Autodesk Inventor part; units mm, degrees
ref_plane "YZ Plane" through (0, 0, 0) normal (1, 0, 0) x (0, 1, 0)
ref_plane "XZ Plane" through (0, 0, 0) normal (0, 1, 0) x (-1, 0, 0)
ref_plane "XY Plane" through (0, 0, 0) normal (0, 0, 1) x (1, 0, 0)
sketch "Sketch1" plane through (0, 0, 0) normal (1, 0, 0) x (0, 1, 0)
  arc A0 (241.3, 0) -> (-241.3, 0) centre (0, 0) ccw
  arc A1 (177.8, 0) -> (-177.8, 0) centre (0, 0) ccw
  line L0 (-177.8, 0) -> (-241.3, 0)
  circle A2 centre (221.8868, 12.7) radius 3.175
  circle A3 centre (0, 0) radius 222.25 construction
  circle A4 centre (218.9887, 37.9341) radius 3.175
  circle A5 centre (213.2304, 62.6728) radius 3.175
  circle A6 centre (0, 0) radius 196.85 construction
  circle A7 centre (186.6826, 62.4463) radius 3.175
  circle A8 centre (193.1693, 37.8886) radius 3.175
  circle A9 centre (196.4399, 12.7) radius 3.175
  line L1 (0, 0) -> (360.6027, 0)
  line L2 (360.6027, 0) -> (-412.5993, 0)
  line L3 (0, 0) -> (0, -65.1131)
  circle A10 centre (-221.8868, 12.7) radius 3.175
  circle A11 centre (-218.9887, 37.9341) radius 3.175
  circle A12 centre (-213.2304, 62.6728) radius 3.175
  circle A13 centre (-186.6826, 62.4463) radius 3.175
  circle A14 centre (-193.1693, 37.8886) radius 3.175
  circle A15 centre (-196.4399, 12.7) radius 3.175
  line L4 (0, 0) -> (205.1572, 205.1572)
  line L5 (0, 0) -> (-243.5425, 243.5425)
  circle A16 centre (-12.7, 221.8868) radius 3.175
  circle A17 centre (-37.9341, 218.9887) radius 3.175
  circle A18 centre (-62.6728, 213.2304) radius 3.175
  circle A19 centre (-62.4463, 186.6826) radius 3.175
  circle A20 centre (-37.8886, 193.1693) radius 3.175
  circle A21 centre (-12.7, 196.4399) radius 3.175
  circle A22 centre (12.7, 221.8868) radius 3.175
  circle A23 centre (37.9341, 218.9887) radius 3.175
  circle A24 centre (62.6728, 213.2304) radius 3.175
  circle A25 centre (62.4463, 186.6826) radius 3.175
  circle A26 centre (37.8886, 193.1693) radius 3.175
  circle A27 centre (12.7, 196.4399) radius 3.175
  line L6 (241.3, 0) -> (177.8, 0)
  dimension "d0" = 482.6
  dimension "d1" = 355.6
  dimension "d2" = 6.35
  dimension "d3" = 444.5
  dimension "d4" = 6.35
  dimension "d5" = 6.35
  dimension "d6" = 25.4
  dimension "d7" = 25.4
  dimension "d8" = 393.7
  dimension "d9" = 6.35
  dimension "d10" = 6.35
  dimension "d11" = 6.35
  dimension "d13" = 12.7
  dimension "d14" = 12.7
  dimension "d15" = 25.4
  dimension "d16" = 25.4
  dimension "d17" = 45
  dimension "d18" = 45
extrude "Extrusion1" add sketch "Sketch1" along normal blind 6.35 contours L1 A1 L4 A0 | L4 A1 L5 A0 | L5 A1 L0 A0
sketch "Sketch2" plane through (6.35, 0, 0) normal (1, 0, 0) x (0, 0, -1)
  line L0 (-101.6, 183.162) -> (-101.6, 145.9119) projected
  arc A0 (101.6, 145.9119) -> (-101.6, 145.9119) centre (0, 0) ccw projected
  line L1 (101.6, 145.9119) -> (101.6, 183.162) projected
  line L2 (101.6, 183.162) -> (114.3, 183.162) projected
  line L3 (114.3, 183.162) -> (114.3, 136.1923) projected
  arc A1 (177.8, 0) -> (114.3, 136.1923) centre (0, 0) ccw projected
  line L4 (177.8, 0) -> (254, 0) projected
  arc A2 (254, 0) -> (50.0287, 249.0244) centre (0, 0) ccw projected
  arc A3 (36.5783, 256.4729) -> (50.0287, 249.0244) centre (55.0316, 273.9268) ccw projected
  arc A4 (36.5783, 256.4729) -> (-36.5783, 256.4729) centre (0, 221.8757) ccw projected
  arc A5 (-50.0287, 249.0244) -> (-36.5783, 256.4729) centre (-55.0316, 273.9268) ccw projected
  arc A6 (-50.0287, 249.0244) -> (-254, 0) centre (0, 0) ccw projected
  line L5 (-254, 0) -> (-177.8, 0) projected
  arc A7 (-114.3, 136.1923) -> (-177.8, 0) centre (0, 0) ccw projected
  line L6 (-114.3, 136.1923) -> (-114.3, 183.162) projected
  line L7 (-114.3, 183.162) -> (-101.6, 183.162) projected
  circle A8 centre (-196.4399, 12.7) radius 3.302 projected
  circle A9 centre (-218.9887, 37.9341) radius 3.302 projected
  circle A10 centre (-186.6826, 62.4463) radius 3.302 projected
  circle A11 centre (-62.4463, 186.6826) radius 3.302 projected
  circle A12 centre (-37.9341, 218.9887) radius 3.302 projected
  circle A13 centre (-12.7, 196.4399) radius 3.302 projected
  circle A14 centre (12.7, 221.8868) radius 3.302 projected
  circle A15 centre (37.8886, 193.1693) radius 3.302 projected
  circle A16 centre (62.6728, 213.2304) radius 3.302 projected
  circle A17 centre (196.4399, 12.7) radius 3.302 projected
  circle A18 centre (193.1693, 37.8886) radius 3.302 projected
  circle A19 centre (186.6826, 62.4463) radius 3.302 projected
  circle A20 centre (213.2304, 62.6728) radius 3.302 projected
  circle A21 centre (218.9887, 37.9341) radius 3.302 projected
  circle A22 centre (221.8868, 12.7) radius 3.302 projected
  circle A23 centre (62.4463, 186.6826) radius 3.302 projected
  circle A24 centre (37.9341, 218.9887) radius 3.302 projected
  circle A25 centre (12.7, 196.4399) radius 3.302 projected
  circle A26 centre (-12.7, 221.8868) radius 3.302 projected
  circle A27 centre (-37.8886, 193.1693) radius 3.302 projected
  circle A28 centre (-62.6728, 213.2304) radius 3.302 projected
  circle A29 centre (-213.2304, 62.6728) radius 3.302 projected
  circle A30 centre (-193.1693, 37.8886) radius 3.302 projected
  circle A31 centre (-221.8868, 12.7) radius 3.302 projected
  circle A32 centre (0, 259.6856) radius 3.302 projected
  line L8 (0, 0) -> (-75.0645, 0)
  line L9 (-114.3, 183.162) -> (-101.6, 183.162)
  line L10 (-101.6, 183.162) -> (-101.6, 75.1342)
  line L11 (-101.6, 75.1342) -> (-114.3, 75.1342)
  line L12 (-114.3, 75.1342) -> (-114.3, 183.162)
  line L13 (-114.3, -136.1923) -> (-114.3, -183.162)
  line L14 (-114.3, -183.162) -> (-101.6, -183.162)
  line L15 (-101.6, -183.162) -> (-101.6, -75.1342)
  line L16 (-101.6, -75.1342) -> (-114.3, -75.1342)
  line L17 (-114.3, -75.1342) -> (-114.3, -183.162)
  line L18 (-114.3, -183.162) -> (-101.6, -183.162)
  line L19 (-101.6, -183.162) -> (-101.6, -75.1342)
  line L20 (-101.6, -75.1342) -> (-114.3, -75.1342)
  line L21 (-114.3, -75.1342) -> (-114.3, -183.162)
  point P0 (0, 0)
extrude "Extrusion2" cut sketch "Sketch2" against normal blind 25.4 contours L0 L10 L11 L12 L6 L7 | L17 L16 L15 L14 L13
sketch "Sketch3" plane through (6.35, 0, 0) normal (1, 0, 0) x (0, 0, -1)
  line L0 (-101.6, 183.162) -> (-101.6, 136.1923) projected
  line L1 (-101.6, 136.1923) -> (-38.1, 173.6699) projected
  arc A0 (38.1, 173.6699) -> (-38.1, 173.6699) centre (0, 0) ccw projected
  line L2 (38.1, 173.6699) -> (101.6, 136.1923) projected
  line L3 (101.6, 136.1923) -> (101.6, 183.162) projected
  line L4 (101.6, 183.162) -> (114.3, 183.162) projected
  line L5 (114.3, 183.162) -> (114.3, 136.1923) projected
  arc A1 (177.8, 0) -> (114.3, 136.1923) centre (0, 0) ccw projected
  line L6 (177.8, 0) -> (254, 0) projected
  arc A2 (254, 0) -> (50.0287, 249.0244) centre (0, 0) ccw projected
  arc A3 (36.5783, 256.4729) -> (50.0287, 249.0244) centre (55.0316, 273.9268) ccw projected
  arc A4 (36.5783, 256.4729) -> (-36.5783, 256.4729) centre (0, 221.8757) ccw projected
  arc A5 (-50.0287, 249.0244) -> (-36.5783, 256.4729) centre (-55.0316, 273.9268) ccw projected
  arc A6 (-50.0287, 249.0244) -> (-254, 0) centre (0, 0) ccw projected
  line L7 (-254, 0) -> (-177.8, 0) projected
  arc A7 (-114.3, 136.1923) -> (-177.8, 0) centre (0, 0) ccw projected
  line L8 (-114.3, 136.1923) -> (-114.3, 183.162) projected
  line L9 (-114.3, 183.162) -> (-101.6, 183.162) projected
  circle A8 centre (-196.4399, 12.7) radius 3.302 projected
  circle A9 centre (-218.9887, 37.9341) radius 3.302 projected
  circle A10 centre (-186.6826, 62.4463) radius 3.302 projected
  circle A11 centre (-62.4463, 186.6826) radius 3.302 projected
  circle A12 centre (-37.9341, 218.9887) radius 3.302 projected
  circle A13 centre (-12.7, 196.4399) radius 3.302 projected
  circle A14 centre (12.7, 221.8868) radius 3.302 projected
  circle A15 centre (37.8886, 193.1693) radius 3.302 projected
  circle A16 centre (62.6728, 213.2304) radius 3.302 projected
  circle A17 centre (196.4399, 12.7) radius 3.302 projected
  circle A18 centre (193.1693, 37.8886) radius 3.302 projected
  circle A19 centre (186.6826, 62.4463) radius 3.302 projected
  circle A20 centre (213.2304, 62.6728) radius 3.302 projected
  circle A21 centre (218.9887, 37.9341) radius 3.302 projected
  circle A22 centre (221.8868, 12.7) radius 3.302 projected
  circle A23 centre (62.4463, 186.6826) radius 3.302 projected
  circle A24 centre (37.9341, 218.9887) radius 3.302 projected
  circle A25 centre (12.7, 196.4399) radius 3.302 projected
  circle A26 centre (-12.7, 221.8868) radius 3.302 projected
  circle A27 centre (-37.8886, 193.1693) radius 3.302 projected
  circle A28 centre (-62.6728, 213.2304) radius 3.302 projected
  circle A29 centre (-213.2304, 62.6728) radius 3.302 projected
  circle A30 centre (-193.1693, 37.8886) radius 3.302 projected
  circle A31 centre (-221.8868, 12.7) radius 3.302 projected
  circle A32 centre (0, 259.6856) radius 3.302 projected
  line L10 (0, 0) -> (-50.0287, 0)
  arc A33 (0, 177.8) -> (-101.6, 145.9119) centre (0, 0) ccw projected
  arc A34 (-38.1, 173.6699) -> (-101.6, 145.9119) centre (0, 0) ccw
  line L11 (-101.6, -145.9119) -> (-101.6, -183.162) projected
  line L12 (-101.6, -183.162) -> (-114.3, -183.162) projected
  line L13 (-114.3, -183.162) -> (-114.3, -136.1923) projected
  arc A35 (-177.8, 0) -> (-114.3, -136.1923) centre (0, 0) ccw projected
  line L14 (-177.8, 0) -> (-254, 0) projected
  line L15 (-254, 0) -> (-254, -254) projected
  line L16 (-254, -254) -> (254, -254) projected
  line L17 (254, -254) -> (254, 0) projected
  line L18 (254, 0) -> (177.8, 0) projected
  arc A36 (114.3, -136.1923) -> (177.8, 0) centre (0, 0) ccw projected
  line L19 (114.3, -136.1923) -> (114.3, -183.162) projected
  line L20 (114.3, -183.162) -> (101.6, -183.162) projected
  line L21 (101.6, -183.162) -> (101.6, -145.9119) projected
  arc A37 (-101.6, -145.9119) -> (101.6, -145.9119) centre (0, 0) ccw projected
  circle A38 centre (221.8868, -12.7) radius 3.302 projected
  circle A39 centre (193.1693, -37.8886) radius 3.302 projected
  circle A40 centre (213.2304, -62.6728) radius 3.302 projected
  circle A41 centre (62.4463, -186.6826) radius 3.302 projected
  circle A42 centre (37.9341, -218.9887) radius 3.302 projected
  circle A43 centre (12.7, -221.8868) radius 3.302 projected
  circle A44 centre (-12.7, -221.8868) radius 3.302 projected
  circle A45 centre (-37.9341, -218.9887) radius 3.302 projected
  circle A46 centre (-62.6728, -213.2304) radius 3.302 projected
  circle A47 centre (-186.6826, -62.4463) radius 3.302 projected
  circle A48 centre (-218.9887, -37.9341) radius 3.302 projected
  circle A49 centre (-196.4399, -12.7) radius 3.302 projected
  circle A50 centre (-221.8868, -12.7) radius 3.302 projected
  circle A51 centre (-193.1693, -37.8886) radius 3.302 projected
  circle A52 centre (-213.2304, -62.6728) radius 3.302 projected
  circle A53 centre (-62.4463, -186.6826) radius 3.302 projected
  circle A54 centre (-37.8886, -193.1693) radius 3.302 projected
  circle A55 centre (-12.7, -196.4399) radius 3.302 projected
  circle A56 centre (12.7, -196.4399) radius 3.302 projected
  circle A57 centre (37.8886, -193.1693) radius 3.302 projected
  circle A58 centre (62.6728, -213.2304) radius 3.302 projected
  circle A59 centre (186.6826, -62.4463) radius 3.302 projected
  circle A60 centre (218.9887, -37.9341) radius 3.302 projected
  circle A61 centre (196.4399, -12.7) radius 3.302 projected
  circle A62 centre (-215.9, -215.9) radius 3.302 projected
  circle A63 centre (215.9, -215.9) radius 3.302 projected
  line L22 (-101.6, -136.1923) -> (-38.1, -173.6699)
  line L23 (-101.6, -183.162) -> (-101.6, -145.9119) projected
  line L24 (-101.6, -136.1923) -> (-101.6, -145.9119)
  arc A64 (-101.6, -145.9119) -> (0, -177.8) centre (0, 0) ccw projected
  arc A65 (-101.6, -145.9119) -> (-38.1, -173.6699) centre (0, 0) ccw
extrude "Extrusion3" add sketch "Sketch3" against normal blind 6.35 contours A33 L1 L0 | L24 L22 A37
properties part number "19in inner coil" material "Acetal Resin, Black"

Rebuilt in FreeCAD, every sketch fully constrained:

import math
import FreeCAD as App
import Part
import Sketcher
Q = App.Units.Quantity


def add_polygon(sketch, points):
    """Adds a closed chain of lines whose ends are joined by coincident constraints."""
    first, n = sketch.GeometryCount, len(points)
    for a, b in zip(points, points[1:] + points[:1]):
        sketch.addGeometry(Part.LineSegment(App.Vector(*a, 0), App.Vector(*b, 0)), False)
    for i in range(n):
        sketch.addConstraint(Sketcher.Constraint("Coincident", first + i, 2, first + (i + 1) % n, 1))

doc = App.newDocument("Part")
body = doc.addObject("PartDesign::Body", "Body")

# Sketch on YZ plane
sketch1 = body.newObject("Sketcher::SketchObject", "Sketch")
sketch1.AttachmentSupport = (doc.getObject("YZ_Plane"), [""])
sketch1.MapMode = "FlatFace"
sketch1.addGeometry([
    Part.LineSegment(App.Vector(177.8, 0, 0), App.Vector(241.3, 0, 0)),  # 0
    Part.ArcOfCircle(Part.Circle(App.Vector(0, 0, 0), App.Vector(0, 0, 1), 241.3), math.radians(0), math.radians(180)),  # 1
    Part.LineSegment(App.Vector(-241.3, 0, 0), App.Vector(-177.8, 0, 0)),  # 2
    Part.ArcOfCircle(Part.Circle(App.Vector(0, 0, 0), App.Vector(0, 0, 1), 177.8), math.radians(0), math.radians(180)),  # 3
    Part.Circle(App.Vector(196.4399, 12.7, 0), App.Vector(0, 0, 1), 3.175),  # 4
    Part.Circle(App.Vector(221.8868, 12.7, 0), App.Vector(0, 0, 1), 3.175),  # 5
    Part.Circle(App.Vector(193.1693, 37.8886, 0), App.Vector(0, 0, 1), 3.175),  # 6
    Part.Circle(App.Vector(218.9887, 37.9341, 0), App.Vector(0, 0, 1), 3.175),  # 7
    Part.Circle(App.Vector(186.6826, 62.4463, 0), App.Vector(0, 0, 1), 3.175),  # 8
    Part.Circle(App.Vector(213.2304, 62.6728, 0), App.Vector(0, 0, 1), 3.175),  # 9
    Part.Circle(App.Vector(62.6728, 213.2304, 0), App.Vector(0, 0, 1), 3.175),  # 10
    Part.Circle(App.Vector(-62.4463, 186.6826, 0), App.Vector(0, 0, 1), 3.175),  # 11
    Part.Circle(App.Vector(-37.8886, 193.1693, 0), App.Vector(0, 0, 1), 3.175),  # 12
    Part.Circle(App.Vector(-12.7, 196.4399, 0), App.Vector(0, 0, 1), 3.175),  # 13
    Part.Circle(App.Vector(-62.6728, 213.2304, 0), App.Vector(0, 0, 1), 3.175),  # 14
    Part.Circle(App.Vector(-37.9341, 218.9887, 0), App.Vector(0, 0, 1), 3.175),  # 15
    Part.Circle(App.Vector(-12.7, 221.8868, 0), App.Vector(0, 0, 1), 3.175),  # 16
    Part.Circle(App.Vector(37.8886, 193.1693, 0), App.Vector(0, 0, 1), 3.175),  # 17
    Part.Circle(App.Vector(12.7, 196.4399, 0), App.Vector(0, 0, 1), 3.175),  # 18
    Part.Circle(App.Vector(62.4463, 186.6826, 0), App.Vector(0, 0, 1), 3.175),  # 19
    Part.Circle(App.Vector(12.7, 221.8868, 0), App.Vector(0, 0, 1), 3.175),  # 20
    Part.Circle(App.Vector(37.9341, 218.9887, 0), App.Vector(0, 0, 1), 3.175),  # 21
    Part.Circle(App.Vector(-186.6826, 62.4463, 0), App.Vector(0, 0, 1), 3.175),  # 22
    Part.Circle(App.Vector(-221.8868, 12.7, 0), App.Vector(0, 0, 1), 3.175),  # 23
    Part.Circle(App.Vector(-196.4399, 12.7, 0), App.Vector(0, 0, 1), 3.175),  # 24
    Part.Circle(App.Vector(-218.9887, 37.9341, 0), App.Vector(0, 0, 1), 3.175),  # 25
    Part.Circle(App.Vector(-193.1693, 37.8886, 0), App.Vector(0, 0, 1), 3.175),  # 26
    Part.Circle(App.Vector(-213.2304, 62.6728, 0), App.Vector(0, 0, 1), 3.175),  # 27
], False)
sketch1.addConstraint([
    Sketcher.Constraint("Coincident", 0, 2, 1, 1),
    Sketcher.Constraint("Coincident", 1, 2, 2, 1),
    Sketcher.Constraint("Coincident", 2, 2, 3, 2),
    Sketcher.Constraint("Coincident", 3, 1, 0, 1),
    Sketcher.Constraint("Horizontal", 0),
    Sketcher.Constraint("Horizontal", 2),
    Sketcher.Constraint("Coincident", 1, 3, -1, 1),
    Sketcher.Constraint("Coincident", 3, 3, -1, 1),
    Sketcher.Constraint("Equal", 4, 5),
    Sketcher.Constraint("Equal", 5, 6),
    Sketcher.Constraint("Equal", 6, 7),
    Sketcher.Constraint("Equal", 7, 8),
    Sketcher.Constraint("Equal", 8, 9),
    Sketcher.Constraint("Equal", 9, 10),
    Sketcher.Constraint("Equal", 10, 11),
    Sketcher.Constraint("Equal", 11, 12),
    Sketcher.Constraint("Equal", 12, 13),
    Sketcher.Constraint("Equal", 13, 14),
    Sketcher.Constraint("Equal", 14, 15),
    Sketcher.Constraint("Equal", 15, 16),
    Sketcher.Constraint("Equal", 16, 17),
    Sketcher.Constraint("Equal", 17, 18),
    Sketcher.Constraint("Equal", 18, 19),
    Sketcher.Constraint("Equal", 19, 20),
    Sketcher.Constraint("Equal", 20, 21),
    Sketcher.Constraint("Equal", 21, 22),
    Sketcher.Constraint("Equal", 22, 23),
    Sketcher.Constraint("Equal", 23, 24),
    Sketcher.Constraint("Equal", 24, 25),
    Sketcher.Constraint("Equal", 25, 26),
    Sketcher.Constraint("Equal", 26, 27),
    Sketcher.Constraint("Symmetric", 10, 3, 14, 3, -2),
    Sketcher.Constraint("Symmetric", 12, 3, 17, 3, -2),
    Sketcher.Constraint("Symmetric", 13, 3, 18, 3, -2),
    Sketcher.Constraint("Symmetric", 11, 3, 19, 3, -2),
    Sketcher.Constraint("Symmetric", 16, 3, 20, 3, -2),
    Sketcher.Constraint("Symmetric", 15, 3, 21, 3, -2),
    Sketcher.Constraint("Symmetric", 8, 3, 22, 3, -2),
    Sketcher.Constraint("Symmetric", 5, 3, 23, 3, -2),
    Sketcher.Constraint("Symmetric", 4, 3, 24, 3, -2),
    Sketcher.Constraint("Symmetric", 7, 3, 25, 3, -2),
    Sketcher.Constraint("Symmetric", 6, 3, 26, 3, -2),
    Sketcher.Constraint("Symmetric", 9, 3, 27, 3, -2),
    Sketcher.Constraint("PointOnObject", 0, 2, -1),
    Sketcher.Constraint("PointOnObject", 1, 2, -1),
    Sketcher.Constraint("Horizontal", 4, 3, 5, 3),
    Sketcher.Constraint("Vertical", 13, 3, 16, 3),
    Sketcher.Constraint("Radius", 3, Q("7 in")),
    Sketcher.Constraint("Radius", 1, Q("9.5 in")),
    Sketcher.Constraint("Diameter", 4, Q("0.25 in")),
    Sketcher.Constraint("DistanceX", 13, 3, 18, 3, Q("1 in")),
    Sketcher.Constraint("DistanceY", -1, 1, 4, 3, Q("0.5 in")),
    Sketcher.Constraint("DistanceX", 8, 3, 5, 3, Q("1.386 in")),
    Sketcher.Constraint("DistanceY", 11, 3, 16, 3, Q("1.386 in")),
    Sketcher.Constraint("DistanceX", -1, 1, 5, 3, Q("8.7357 in")),
    Sketcher.Constraint("DistanceX", -1, 1, 6, 3, Q("7.6051 in")),
    Sketcher.Constraint("DistanceX", -1, 1, 7, 3, Q("8.6216 in")),
    Sketcher.Constraint("DistanceX", -1, 1, 9, 3, Q("8.3949 in")),
    Sketcher.Constraint("DistanceY", -1, 1, 10, 3, Q("8.3949 in")),
    Sketcher.Constraint("DistanceY", -1, 1, 11, 3, Q("7.3497 in")),
    Sketcher.Constraint("DistanceY", -1, 1, 12, 3, Q("7.6051 in")),
    Sketcher.Constraint("DistanceY", -1, 1, 15, 3, Q("8.6216 in")),
    Sketcher.Constraint("DistanceY", 6, 3, 7, 3, Q("0.0018 in")),
    Sketcher.Constraint("DistanceY", 8, 3, 11, 3, Q("4.8912 in")),
    Sketcher.Constraint("DistanceX", 11, 3, 6, 3, Q("10.0636 in")),
    Sketcher.Constraint("DistanceX", 12, 3, 10, 3, Q("3.9591 in")),
    Sketcher.Constraint("DistanceX", 15, 3, 12, 3, Q("0.0018 in")),
    Sketcher.Constraint("DistanceX", -1, 1, 4, 3, Q("196.44 mm")),
    Sketcher.Constraint("DistanceY", -1, 1, 6, 3, Q("37.8886 mm")),
    Sketcher.Constraint("DistanceY", -1, 1, 9, 3, Q("62.6728 mm")),
    Sketcher.Constraint("DistanceX", -1, 1, 10, 3, Q("62.6728 mm")),
    Sketcher.Constraint("DistanceY", -1, 1, 13, 3, Q("196.44 mm")),
])
pad1 = body.newObject("PartDesign::Pad", "Pad")
pad1.Profile = sketch1
pad1.Length = Q("0.25 in")

# Sketch on YZ plane
sketch2 = body.newObject("Sketcher::SketchObject", "Sketch001")
sketch2.AttachmentSupport = (doc.getObject("YZ_Plane"), [""])
sketch2.MapMode = "FlatFace"
sketch2.AttachmentOffset = App.Placement(App.Vector(0, 0, 0.25 * 25.4), App.Rotation())
add_polygon(sketch2, [(75.1342, 101.6), (183.162, 101.6), (183.162, 114.3), (75.1342, 114.3)])  # lines 0-3
add_polygon(sketch2, [(-75.1342, 114.3), (-183.162, 114.3), (-183.162, 101.6), (-75.1342, 101.6)])  # lines 4-7
sketch2.addConstraint([
    Sketcher.Constraint("Horizontal", 0),
    Sketcher.Constraint("Vertical", 1),
    Sketcher.Constraint("Horizontal", 2),
    Sketcher.Constraint("Vertical", 3),
    Sketcher.Constraint("Horizontal", 4),
    Sketcher.Constraint("Vertical", 5),
    Sketcher.Constraint("Horizontal", 6),
    Sketcher.Constraint("Vertical", 7),
    Sketcher.Constraint("Symmetric", 1, 2, 4, 2, -2),
    Sketcher.Constraint("Symmetric", 3, 2, 6, 2, -2),
    Sketcher.Constraint("DistanceY", 1, 1, 1, 2, Q("0.5 in")),
    Sketcher.Constraint("DistanceY", -1, 1, 0, 2, Q("4 in")),
    Sketcher.Constraint("DistanceX", 0, 1, 0, 2, Q("108.0278 mm")),
    Sketcher.Constraint("DistanceX", -1, 1, 0, 2, Q("7.2111 in")),
])
pocket1 = body.newObject("PartDesign::Pocket", "Pocket")
pocket1.Profile = sketch2
pocket1.Length = Q("1 in")

# Sketch on YZ plane
sketch3 = body.newObject("Sketcher::SketchObject", "Sketch002")
sketch3.AttachmentSupport = (doc.getObject("YZ_Plane"), [""])
sketch3.MapMode = "FlatFace"
sketch3.AttachmentOffset = App.Placement(App.Vector(0, 0, 0.25 * 25.4), App.Rotation())
sketch3.addGeometry([
    Part.ArcOfCircle(Part.Circle(App.Vector(0, 0, 0), App.Vector(0, 0, 1), 177.800012), math.radians(12.373624), math.radians(34.849903)),  # 0
    Part.LineSegment(App.Vector(145.9119, 101.6, 0), App.Vector(136.1923, 101.6, 0)),  # 1
    Part.LineSegment(App.Vector(136.1923, 101.6, 0), App.Vector(173.6699, 38.1, 0)),  # 2
    Part.LineSegment(App.Vector(-136.1923, 101.6, 0), App.Vector(-145.9119, 101.6, 0)),  # 3
    Part.ArcOfCircle(Part.Circle(App.Vector(0, 0, 0), App.Vector(0, 0, 1), 177.800007), math.radians(145.150097), math.radians(167.626376)),  # 4
    Part.LineSegment(App.Vector(-173.6699, 38.1, 0), App.Vector(-136.1923, 101.6, 0)),  # 5
], False)
sketch3.addConstraint([
    Sketcher.Constraint("Coincident", 0, 2, 1, 1),
    Sketcher.Constraint("Coincident", 1, 2, 2, 1),
    Sketcher.Constraint("Coincident", 2, 2, 0, 1),
    Sketcher.Constraint("Coincident", 3, 2, 4, 1),
    Sketcher.Constraint("Coincident", 4, 2, 5, 1),
    Sketcher.Constraint("Coincident", 5, 2, 3, 1),
    Sketcher.Constraint("Horizontal", 1),
    Sketcher.Constraint("Horizontal", 3),
    Sketcher.Constraint("Coincident", 0, 3, -1, 1),
    Sketcher.Constraint("Coincident", 4, 3, -1, 1),
    Sketcher.Constraint("Equal", 0, 4),
    Sketcher.Constraint("Symmetric", 1, 2, 5, 2, -2),
    Sketcher.Constraint("Horizontal", 2, 2, 4, 2),
    Sketcher.Constraint("Radius", 0, Q("7 in")),
    Sketcher.Constraint("DistanceY", -1, 1, 0, 2, Q("4 in")),
    Sketcher.Constraint("DistanceY", -1, 1, 2, 2, Q("1.5 in")),
    Sketcher.Constraint("Angle", 2, Q("-59.451 deg")),
])
pad2 = body.newObject("PartDesign::Pad", "Pad001")
pad2.Profile = sketch3
pad2.Length = Q("0.25 in")
pad2.Reversed = True

doc.recompute()
